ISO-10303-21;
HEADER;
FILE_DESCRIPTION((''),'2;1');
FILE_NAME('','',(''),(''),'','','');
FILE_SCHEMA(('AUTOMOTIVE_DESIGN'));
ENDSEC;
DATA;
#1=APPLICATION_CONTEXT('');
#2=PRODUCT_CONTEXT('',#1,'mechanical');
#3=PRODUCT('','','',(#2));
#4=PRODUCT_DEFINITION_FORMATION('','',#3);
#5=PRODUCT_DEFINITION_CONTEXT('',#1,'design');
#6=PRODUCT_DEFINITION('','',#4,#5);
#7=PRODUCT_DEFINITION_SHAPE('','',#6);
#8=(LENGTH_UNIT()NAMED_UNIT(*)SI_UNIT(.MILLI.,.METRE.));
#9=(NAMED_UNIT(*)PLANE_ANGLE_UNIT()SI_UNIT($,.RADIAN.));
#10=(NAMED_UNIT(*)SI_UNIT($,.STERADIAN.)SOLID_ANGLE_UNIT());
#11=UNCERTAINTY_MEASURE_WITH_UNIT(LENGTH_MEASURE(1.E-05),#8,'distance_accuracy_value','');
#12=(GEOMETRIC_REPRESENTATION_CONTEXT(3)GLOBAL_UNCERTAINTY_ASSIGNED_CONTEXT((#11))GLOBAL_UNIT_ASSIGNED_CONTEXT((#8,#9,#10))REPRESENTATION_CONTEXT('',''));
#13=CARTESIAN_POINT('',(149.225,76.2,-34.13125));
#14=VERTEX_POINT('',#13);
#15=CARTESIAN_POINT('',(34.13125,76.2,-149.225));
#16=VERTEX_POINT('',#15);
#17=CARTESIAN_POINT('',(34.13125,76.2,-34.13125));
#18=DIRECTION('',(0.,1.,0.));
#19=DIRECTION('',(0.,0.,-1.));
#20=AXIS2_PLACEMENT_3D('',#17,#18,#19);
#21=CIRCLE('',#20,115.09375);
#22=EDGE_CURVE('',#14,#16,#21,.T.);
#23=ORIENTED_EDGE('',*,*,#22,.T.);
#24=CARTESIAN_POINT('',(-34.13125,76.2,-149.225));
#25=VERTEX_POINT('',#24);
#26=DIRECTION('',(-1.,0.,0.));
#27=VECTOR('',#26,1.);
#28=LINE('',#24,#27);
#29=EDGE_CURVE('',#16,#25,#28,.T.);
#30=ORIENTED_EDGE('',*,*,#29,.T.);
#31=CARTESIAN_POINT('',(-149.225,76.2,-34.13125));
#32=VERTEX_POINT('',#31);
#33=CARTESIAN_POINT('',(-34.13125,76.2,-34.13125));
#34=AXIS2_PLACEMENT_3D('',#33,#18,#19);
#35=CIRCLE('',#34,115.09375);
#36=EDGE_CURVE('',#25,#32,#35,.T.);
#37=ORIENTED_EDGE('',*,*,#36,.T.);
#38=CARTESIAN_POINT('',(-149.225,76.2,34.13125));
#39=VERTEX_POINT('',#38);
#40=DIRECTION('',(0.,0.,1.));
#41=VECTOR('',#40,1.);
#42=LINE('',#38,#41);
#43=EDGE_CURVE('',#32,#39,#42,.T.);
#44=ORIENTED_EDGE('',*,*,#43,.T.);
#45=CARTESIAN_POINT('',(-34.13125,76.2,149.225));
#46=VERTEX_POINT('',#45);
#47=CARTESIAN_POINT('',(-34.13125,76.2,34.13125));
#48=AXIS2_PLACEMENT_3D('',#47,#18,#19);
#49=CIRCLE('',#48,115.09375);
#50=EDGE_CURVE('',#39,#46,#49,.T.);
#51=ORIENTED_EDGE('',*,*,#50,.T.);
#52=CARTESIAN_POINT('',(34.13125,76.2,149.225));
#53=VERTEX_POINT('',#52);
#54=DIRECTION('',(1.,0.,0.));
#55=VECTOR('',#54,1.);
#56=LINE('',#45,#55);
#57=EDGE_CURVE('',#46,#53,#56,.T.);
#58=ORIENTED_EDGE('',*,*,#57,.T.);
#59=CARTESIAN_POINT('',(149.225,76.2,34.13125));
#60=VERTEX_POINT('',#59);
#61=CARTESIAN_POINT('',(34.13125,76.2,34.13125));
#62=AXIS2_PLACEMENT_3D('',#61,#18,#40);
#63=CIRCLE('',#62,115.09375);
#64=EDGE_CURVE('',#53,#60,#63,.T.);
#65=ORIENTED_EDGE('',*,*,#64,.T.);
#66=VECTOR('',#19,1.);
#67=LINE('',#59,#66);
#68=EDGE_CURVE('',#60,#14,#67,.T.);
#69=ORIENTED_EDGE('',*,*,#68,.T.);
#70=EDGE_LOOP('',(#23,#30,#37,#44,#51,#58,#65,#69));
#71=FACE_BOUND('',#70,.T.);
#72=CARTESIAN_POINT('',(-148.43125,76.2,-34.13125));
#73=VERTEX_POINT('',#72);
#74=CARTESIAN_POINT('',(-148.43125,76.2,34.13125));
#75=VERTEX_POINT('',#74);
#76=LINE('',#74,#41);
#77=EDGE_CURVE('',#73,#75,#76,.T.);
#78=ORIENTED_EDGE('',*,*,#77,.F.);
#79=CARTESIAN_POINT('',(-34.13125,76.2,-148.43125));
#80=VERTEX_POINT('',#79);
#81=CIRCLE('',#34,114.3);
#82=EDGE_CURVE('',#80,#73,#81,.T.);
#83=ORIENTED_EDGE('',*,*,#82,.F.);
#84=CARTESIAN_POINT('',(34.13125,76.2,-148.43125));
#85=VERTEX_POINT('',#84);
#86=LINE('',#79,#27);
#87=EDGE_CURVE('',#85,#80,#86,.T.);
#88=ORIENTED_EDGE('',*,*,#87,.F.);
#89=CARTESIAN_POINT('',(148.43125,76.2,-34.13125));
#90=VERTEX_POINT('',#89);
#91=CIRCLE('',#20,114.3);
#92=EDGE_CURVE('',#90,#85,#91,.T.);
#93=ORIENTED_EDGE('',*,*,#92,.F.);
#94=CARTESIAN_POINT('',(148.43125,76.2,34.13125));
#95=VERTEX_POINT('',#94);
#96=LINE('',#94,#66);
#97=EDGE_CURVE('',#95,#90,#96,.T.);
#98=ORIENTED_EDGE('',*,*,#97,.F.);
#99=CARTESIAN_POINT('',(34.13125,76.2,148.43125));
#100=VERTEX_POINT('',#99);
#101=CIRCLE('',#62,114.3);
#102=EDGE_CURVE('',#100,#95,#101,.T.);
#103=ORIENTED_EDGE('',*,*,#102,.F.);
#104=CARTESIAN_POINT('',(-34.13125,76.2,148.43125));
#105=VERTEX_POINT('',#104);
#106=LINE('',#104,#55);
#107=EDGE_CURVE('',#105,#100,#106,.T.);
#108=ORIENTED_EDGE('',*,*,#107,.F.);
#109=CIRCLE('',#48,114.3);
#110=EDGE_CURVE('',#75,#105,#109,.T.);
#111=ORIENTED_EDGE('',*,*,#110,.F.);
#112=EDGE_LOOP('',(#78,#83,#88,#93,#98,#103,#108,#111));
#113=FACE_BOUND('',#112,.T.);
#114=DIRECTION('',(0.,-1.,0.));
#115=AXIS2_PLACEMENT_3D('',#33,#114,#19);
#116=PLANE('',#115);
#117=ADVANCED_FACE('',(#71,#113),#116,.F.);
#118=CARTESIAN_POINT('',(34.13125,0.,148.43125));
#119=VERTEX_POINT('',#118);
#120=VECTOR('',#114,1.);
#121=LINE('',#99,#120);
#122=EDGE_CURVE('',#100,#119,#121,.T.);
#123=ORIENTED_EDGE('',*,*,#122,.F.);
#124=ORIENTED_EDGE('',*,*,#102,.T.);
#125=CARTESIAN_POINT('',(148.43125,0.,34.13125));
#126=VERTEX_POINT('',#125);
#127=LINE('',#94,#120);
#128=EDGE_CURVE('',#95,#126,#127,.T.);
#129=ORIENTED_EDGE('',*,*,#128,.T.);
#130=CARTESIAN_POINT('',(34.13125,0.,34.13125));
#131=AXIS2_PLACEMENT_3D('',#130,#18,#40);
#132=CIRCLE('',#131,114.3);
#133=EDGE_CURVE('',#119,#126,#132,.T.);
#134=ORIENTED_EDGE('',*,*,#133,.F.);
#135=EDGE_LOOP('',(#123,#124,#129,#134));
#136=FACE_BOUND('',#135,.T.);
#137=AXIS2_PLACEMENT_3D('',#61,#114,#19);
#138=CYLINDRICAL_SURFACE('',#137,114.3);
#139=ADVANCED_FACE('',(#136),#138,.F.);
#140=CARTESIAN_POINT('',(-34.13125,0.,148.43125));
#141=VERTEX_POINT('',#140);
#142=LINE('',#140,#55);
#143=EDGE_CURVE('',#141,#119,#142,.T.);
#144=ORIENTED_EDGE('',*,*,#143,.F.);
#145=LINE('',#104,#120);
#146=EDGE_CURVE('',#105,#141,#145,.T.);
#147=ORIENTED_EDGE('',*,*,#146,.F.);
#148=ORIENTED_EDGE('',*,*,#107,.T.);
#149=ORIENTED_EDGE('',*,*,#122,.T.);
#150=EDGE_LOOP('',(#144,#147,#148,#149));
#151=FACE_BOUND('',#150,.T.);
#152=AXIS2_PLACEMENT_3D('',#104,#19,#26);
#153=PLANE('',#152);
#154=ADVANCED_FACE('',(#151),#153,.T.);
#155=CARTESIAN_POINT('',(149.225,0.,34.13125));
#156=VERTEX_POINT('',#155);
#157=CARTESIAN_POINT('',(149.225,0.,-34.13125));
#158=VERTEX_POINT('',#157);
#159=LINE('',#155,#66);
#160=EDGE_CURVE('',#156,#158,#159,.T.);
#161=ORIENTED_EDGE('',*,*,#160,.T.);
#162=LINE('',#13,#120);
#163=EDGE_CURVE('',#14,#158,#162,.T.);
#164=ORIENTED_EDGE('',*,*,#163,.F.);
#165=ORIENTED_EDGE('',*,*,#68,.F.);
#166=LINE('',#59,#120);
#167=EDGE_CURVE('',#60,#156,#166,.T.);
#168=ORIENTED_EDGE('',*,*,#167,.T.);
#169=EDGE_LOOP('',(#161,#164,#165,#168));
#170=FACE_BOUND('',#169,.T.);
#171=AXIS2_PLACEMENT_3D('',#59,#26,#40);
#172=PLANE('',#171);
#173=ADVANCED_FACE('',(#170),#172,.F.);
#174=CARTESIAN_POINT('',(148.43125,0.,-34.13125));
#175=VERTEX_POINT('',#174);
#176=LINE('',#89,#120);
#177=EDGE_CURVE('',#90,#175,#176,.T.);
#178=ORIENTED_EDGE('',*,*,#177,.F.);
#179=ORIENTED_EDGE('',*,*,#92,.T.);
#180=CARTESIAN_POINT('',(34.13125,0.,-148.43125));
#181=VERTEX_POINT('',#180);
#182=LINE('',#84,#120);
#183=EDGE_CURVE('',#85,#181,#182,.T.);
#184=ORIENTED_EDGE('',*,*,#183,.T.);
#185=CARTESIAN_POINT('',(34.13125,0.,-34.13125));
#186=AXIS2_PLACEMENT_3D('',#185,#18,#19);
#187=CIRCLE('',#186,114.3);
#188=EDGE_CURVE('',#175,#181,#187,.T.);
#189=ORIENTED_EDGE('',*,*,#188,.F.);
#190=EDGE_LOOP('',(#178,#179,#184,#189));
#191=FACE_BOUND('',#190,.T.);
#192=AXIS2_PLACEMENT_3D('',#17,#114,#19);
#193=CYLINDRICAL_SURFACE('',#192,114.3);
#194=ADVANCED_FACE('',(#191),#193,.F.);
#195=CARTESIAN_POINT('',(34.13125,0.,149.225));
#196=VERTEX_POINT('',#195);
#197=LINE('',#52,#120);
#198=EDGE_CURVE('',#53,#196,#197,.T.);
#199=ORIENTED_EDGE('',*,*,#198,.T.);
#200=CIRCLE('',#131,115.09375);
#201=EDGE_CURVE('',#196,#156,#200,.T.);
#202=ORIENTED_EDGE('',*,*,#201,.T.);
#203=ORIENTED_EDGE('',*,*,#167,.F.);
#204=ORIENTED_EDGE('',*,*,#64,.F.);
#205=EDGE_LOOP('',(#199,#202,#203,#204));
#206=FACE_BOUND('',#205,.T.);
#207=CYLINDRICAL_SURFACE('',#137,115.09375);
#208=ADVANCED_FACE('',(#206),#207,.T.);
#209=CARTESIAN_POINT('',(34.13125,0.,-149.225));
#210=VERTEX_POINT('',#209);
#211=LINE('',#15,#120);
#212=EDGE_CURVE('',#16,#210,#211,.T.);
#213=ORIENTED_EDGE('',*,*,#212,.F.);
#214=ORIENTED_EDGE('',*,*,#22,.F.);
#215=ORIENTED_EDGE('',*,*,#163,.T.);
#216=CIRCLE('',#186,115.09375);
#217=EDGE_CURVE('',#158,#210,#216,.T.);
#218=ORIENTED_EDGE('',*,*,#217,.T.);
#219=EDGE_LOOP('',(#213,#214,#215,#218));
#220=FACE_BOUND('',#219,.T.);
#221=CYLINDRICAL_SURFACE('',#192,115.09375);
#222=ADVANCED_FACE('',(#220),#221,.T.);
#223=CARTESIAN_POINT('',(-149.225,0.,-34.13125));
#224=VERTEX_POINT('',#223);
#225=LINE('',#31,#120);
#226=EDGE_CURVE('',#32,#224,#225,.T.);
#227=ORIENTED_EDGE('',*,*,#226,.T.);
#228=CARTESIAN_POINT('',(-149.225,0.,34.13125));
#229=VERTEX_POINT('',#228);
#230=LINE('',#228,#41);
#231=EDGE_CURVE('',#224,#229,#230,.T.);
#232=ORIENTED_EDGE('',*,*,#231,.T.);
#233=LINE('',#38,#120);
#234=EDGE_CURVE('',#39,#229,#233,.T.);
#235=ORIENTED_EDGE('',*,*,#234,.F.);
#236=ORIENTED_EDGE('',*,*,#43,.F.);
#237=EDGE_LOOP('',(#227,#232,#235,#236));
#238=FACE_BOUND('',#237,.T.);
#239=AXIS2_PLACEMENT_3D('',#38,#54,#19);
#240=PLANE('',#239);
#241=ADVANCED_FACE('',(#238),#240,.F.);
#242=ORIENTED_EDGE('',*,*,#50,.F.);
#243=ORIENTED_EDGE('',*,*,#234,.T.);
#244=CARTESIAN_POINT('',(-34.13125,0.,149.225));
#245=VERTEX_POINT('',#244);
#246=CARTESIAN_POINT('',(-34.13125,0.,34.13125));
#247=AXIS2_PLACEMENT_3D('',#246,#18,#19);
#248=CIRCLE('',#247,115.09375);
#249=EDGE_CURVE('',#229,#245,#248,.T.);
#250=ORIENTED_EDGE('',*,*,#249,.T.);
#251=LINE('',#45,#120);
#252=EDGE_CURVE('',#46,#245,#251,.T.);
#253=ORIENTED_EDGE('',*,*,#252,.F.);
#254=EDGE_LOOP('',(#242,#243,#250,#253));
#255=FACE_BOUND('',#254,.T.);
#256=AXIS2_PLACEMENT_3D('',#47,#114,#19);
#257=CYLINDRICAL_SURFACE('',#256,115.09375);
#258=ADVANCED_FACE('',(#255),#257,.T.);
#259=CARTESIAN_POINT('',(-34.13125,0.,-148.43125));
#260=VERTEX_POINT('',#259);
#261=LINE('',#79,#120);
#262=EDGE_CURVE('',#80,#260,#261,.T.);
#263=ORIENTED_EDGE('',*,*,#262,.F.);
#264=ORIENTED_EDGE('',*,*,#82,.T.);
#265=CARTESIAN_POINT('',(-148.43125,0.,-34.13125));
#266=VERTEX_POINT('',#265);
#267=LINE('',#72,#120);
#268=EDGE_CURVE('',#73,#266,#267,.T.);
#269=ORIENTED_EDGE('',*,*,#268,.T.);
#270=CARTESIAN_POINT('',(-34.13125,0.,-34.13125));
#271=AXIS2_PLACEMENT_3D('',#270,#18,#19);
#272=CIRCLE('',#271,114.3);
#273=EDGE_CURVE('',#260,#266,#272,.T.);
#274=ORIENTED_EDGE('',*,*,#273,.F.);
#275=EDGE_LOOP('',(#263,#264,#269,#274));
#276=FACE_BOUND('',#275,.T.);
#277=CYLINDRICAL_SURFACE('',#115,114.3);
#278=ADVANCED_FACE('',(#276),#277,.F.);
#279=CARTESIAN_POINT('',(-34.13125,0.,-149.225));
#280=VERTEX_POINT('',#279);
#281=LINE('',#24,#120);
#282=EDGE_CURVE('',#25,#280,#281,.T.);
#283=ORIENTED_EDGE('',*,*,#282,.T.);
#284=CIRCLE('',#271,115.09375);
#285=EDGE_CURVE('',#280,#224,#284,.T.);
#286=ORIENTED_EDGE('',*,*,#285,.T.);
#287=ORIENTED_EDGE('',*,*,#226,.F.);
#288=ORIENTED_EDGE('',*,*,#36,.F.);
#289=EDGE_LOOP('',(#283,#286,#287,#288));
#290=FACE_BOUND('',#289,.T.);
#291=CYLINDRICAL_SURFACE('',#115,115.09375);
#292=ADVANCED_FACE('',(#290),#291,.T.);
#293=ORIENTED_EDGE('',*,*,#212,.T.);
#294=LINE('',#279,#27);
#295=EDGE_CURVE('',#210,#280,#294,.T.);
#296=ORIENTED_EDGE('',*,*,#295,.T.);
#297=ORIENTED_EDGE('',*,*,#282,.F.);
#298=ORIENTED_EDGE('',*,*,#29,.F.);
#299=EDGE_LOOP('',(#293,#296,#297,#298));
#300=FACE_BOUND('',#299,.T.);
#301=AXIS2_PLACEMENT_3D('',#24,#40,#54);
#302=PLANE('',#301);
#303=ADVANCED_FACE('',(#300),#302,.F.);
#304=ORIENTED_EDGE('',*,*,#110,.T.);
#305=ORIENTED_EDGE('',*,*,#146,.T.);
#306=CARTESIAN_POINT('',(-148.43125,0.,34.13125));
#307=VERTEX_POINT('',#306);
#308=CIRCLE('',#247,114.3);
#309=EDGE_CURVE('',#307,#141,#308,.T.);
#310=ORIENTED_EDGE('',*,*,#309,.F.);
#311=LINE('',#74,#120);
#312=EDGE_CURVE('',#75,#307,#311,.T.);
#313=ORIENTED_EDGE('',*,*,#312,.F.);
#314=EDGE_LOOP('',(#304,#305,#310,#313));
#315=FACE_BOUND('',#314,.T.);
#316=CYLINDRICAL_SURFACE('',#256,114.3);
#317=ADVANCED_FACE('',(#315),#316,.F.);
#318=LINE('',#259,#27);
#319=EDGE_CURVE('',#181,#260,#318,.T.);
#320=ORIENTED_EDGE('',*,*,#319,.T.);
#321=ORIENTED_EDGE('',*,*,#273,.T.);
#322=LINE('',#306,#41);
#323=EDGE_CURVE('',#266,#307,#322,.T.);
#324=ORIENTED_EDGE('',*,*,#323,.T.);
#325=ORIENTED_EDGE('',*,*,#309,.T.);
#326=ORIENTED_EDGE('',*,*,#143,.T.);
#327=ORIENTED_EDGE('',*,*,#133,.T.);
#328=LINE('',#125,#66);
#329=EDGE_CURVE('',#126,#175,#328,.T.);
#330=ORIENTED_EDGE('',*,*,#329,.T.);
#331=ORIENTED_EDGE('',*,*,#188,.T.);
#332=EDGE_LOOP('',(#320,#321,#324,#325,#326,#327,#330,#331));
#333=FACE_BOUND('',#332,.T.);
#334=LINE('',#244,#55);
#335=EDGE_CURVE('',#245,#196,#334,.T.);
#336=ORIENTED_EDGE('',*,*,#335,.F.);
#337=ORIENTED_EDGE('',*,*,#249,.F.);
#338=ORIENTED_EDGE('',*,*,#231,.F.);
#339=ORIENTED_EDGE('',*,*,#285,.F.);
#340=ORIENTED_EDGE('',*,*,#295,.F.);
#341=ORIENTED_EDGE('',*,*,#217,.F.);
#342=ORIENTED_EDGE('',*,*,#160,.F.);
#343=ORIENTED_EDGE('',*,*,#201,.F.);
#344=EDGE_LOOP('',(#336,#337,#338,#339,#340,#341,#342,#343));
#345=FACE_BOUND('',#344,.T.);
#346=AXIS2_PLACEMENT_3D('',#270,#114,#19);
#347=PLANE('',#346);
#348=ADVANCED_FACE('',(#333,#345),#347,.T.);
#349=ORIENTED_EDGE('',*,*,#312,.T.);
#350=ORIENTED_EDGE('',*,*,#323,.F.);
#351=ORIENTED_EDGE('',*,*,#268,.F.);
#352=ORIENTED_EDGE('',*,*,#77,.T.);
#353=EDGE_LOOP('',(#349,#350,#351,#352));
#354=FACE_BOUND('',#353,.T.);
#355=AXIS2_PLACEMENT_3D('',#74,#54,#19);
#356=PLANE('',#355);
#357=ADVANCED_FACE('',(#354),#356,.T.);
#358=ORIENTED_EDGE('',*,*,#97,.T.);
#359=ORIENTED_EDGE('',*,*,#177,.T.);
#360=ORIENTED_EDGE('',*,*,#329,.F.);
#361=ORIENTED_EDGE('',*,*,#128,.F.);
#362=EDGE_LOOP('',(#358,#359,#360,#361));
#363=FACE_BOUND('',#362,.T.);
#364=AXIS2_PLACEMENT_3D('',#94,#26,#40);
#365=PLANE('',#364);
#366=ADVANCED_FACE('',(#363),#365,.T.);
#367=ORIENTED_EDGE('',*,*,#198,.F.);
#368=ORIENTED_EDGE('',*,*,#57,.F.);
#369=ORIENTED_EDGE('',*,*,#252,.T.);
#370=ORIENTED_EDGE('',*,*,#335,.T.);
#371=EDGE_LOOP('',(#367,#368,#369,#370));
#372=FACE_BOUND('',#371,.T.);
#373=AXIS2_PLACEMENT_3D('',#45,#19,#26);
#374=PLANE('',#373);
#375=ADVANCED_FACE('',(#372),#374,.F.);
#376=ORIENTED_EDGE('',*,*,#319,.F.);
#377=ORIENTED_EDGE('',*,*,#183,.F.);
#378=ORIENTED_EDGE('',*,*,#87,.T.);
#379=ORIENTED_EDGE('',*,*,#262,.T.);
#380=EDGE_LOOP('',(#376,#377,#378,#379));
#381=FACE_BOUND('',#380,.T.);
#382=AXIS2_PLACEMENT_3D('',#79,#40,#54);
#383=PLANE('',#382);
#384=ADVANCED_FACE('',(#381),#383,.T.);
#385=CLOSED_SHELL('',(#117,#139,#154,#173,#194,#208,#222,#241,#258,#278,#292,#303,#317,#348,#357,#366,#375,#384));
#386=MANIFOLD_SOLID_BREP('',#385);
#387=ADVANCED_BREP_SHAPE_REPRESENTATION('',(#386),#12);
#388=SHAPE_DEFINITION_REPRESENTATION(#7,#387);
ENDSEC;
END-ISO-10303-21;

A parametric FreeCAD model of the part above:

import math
import FreeCAD as App
import Part
import Sketcher
from FreeCAD import Vector
Q = App.Units.Quantity

doc = App.newDocument("Part")
body = doc.addObject("PartDesign::Body", "Body")

# Sketch on XZ plane
sketch1 = body.newObject("Sketcher::SketchObject", "Sketch")
sketch1.AttachmentSupport = (doc.getObject("XZ_Plane"), [""])
sketch1.MapMode = "FlatFace"
sketch1.addGeometry(Part.LineSegment(Vector(34, -149, 0), Vector(-34, -149, 0)), False)
sketch1.addGeometry(Part.ArcOfCircle(Part.Circle(Vector(-34, -34, 0), Vector(0, 0, 1), 115), math.radians(-180), math.radians(-90)), False)
sketch1.addGeometry(Part.LineSegment(Vector(-149, -34, 0), Vector(-149, 34, 0)), False)
sketch1.addGeometry(Part.ArcOfCircle(Part.Circle(Vector(-34, 34, 0), Vector(0, 0, 1), 115), math.radians(90), math.radians(180)), False)
sketch1.addGeometry(Part.LineSegment(Vector(-34, 149, 0), Vector(34, 149, 0)), False)
sketch1.addGeometry(Part.ArcOfCircle(Part.Circle(Vector(34, 34, 0), Vector(0, 0, 1), 115), math.radians(0), math.radians(90)), False)
sketch1.addGeometry(Part.LineSegment(Vector(149, 34, 0), Vector(149, -34, 0)), False)
sketch1.addGeometry(Part.ArcOfCircle(Part.Circle(Vector(34, -34, 0), Vector(0, 0, 1), 115), math.radians(-90), math.radians(0)), False)
sketch1.addGeometry(Part.ArcOfCircle(Part.Circle(Vector(-34, 34, 0), Vector(0, 0, 1), 114), math.radians(90), math.radians(180)), False)
sketch1.addGeometry(Part.LineSegment(Vector(-148, 34, 0), Vector(-148, -34, 0)), False)
sketch1.addGeometry(Part.ArcOfCircle(Part.Circle(Vector(-34, -34, 0), Vector(0, 0, 1), 114), math.radians(180), math.radians(270)), False)
sketch1.addGeometry(Part.LineSegment(Vector(-34, -148, 0), Vector(34, -148, 0)), False)
sketch1.addGeometry(Part.ArcOfCircle(Part.Circle(Vector(34, -34, 0), Vector(0, 0, 1), 114), math.radians(-90), math.radians(0)), False)
sketch1.addGeometry(Part.LineSegment(Vector(148, -34, 0), Vector(148, 34, 0)), False)
sketch1.addGeometry(Part.ArcOfCircle(Part.Circle(Vector(34, 34, 0), Vector(0, 0, 1), 114), math.radians(0), math.radians(90)), False)
sketch1.addGeometry(Part.LineSegment(Vector(34, 148, 0), Vector(-34, 148, 0)), False)
sketch1.addConstraint(Sketcher.Constraint("Tangent", 0, 2, 1, 2))
sketch1.addConstraint(Sketcher.Constraint("Tangent", 1, 1, 2, 1))
sketch1.addConstraint(Sketcher.Constraint("Tangent", 2, 2, 3, 2))
sketch1.addConstraint(Sketcher.Constraint("Tangent", 3, 1, 4, 1))
sketch1.addConstraint(Sketcher.Constraint("Tangent", 4, 2, 5, 2))
sketch1.addConstraint(Sketcher.Constraint("Tangent", 5, 1, 6, 1))
sketch1.addConstraint(Sketcher.Constraint("Tangent", 6, 2, 7, 2))
sketch1.addConstraint(Sketcher.Constraint("Tangent", 7, 1, 0, 1))
sketch1.addConstraint(Sketcher.Constraint("Tangent", 8, 2, 9, 1))
sketch1.addConstraint(Sketcher.Constraint("Tangent", 9, 2, 10, 1))
sketch1.addConstraint(Sketcher.Constraint("Tangent", 10, 2, 11, 1))
sketch1.addConstraint(Sketcher.Constraint("Tangent", 11, 2, 12, 1))
sketch1.addConstraint(Sketcher.Constraint("Tangent", 12, 2, 13, 1))
sketch1.addConstraint(Sketcher.Constraint("Tangent", 13, 2, 14, 1))
sketch1.addConstraint(Sketcher.Constraint("Tangent", 14, 2, 15, 1))
sketch1.addConstraint(Sketcher.Constraint("Tangent", 15, 2, 8, 1))
sketch1.addConstraint(Sketcher.Constraint("Horizontal", 0))
sketch1.addConstraint(Sketcher.Constraint("Vertical", 2))
sketch1.addConstraint(Sketcher.Constraint("Horizontal", 4))
sketch1.addConstraint(Sketcher.Constraint("Vertical", 6))
sketch1.addConstraint(Sketcher.Constraint("Vertical", 9))
sketch1.addConstraint(Sketcher.Constraint("Horizontal", 11))
sketch1.addConstraint(Sketcher.Constraint("Vertical", 13))
sketch1.addConstraint(Sketcher.Constraint("Horizontal", 15))
sketch1.addConstraint(Sketcher.Constraint("Coincident", 8, 3, 3, 3))
sketch1.addConstraint(Sketcher.Constraint("Coincident", 10, 3, 1, 3))
sketch1.addConstraint(Sketcher.Constraint("Coincident", 12, 3, 7, 3))
sketch1.addConstraint(Sketcher.Constraint("Equal", 1, 3))
sketch1.addConstraint(Sketcher.Constraint("Equal", 3, 5))
sketch1.addConstraint(Sketcher.Constraint("Equal", 5, 7))
sketch1.addConstraint(Sketcher.Constraint("Equal", 12, 14))
sketch1.addConstraint(Sketcher.Constraint("Symmetric", 1, 3, 5, 3, -1, 1))
sketch1.addConstraint(Sketcher.Constraint("Equal", 15, 2))
sketch1.addConstraint(Sketcher.Constraint("Radius", 8, Q("4.5 in")))
sketch1.addConstraint(Sketcher.Constraint("Radius", 1, Q("4.53125 in")))
sketch1.addConstraint(Sketcher.Constraint("DistanceX", 0, 2, 0, 1, Q("2.6875 in")))
pad1 = body.newObject("PartDesign::Pad", "Pad")
pad1.Profile = sketch1
pad1.Length = Q("3 in")
pad1.Reversed = True

doc.recompute()
